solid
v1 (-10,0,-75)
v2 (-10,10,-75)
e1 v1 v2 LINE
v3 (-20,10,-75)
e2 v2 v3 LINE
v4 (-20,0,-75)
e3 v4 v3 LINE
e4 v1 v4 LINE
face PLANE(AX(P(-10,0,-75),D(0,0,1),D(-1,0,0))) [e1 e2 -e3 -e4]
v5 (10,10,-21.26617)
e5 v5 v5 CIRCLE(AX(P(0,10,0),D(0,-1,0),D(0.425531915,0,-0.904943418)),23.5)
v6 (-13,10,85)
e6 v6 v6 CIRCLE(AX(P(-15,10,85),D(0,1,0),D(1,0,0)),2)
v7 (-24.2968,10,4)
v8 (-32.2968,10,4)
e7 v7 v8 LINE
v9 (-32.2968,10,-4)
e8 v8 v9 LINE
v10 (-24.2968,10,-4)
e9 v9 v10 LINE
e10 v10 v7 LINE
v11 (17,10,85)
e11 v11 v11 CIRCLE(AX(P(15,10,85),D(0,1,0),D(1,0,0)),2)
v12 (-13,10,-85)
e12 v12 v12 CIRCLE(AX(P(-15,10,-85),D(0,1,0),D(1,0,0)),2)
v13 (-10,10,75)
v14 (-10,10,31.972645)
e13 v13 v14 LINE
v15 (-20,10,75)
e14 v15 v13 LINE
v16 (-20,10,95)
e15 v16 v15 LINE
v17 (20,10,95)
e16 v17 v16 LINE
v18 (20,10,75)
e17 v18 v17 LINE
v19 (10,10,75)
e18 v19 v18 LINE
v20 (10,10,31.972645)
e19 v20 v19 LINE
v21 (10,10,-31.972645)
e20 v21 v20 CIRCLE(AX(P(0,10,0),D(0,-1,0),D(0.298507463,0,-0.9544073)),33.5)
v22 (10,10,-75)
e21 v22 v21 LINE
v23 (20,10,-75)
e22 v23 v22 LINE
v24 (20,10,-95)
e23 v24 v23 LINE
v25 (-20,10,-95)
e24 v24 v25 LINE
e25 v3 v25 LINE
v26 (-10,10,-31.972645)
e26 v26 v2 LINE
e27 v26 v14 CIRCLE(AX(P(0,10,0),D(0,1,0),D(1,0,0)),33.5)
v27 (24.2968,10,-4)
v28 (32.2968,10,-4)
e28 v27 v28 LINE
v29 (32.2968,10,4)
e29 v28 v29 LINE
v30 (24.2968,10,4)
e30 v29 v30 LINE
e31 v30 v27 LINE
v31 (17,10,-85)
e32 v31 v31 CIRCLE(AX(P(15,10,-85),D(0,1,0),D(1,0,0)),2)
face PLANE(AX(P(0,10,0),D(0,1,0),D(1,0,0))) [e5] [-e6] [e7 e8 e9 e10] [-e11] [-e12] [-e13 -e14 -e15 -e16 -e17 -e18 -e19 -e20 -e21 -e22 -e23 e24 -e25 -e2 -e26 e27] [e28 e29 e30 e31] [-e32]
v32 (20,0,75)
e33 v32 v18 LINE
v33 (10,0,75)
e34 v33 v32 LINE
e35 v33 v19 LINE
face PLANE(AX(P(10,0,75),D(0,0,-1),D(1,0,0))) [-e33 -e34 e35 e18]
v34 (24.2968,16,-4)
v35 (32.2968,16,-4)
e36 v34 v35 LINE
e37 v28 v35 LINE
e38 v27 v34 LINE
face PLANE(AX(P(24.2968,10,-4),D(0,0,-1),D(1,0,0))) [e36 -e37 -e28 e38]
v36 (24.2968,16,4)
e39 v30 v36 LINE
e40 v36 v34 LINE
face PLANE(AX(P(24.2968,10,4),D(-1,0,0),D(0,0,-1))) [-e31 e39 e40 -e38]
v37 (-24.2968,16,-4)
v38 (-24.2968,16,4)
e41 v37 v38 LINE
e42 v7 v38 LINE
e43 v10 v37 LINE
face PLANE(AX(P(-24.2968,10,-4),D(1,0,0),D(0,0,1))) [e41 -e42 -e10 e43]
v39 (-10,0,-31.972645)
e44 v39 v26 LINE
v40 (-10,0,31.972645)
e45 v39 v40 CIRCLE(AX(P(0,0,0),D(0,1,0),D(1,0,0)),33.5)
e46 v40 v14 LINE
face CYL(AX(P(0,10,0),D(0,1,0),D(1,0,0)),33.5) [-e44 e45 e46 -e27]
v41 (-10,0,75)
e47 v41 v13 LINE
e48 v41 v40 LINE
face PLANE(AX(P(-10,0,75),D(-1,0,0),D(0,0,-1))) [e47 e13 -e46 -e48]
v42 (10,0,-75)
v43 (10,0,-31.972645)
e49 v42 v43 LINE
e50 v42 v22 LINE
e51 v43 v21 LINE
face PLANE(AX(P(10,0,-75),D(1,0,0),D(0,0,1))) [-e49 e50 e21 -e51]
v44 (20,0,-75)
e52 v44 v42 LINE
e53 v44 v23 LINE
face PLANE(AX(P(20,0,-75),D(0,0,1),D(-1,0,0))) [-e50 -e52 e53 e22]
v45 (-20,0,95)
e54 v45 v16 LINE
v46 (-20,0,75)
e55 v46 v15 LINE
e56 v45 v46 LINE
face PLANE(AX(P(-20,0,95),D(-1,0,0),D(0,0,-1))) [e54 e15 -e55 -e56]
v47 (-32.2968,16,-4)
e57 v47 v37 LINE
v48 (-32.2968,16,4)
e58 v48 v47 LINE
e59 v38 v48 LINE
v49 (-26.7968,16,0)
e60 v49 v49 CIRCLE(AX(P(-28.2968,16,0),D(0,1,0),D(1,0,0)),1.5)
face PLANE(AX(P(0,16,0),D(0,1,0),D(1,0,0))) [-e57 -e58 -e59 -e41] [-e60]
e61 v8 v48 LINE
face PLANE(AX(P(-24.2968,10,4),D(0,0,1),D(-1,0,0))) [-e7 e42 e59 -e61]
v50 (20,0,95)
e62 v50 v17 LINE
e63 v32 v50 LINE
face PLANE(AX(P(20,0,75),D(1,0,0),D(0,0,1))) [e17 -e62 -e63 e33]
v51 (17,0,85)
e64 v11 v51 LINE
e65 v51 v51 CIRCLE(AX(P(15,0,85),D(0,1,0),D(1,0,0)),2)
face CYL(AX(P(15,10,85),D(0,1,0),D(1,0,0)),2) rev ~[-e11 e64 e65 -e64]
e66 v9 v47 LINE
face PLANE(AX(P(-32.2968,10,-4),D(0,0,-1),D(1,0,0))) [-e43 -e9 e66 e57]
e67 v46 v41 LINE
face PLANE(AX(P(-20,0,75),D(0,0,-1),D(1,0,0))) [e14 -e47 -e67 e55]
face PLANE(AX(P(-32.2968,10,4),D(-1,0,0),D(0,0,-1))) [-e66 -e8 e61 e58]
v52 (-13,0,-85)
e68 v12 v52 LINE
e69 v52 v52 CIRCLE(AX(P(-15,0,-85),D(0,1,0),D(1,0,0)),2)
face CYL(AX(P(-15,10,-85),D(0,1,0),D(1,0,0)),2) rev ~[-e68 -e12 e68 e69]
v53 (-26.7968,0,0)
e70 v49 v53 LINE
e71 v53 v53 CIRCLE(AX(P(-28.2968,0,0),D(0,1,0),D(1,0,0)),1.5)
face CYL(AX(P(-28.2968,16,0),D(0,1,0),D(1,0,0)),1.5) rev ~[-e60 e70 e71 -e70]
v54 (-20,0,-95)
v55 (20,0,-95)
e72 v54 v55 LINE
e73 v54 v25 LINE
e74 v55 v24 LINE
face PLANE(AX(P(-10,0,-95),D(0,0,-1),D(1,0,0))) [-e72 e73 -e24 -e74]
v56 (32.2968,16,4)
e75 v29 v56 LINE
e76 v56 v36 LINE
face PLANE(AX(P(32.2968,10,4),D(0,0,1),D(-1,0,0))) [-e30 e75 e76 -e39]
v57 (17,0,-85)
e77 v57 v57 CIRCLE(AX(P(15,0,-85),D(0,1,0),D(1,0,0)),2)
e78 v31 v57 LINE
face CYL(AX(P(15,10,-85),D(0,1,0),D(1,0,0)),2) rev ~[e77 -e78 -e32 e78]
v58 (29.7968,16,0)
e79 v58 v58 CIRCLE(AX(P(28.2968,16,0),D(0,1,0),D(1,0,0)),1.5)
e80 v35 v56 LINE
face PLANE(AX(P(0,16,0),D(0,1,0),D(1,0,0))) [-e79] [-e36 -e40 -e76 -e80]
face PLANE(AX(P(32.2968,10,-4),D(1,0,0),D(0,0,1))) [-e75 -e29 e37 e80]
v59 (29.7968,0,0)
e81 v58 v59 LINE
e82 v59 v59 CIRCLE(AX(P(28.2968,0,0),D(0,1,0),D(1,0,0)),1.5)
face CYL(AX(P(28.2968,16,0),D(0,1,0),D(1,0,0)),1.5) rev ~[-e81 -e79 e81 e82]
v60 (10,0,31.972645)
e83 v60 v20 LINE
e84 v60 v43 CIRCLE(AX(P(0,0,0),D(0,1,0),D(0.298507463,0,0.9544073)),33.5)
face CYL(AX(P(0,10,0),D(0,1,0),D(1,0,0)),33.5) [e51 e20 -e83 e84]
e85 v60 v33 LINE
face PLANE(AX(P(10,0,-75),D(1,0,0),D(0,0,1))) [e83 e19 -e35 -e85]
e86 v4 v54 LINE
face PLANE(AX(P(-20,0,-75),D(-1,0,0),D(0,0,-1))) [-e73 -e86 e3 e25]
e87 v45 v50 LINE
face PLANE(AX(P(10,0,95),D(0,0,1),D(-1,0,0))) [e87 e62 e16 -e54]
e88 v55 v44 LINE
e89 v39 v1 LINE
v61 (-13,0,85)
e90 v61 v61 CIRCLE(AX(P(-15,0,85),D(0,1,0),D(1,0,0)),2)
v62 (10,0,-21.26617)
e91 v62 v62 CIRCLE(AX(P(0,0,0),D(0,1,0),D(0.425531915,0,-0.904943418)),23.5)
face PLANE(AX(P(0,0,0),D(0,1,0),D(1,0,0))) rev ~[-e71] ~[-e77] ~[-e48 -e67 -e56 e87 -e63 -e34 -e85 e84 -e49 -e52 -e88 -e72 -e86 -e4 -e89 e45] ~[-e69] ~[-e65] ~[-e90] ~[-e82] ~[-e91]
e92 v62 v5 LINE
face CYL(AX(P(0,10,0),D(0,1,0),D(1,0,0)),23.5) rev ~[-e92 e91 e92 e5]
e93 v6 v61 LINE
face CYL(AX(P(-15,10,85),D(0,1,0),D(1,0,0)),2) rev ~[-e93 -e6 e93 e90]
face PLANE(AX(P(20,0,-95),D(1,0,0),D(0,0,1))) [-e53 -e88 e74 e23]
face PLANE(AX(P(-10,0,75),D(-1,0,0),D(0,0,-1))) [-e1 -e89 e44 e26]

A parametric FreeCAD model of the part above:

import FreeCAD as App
import Part
import Sketcher

V = App.Vector
Q = App.Units.Quantity


def add_polygon(sketch, points):
    """Adds a closed chain of lines whose ends are joined by coincident constraints."""
    first, n = sketch.GeometryCount, len(points)
    for a, b in zip(points, points[1:] + points[:1]):
        sketch.addGeometry(Part.LineSegment(App.Vector(*a, 0), App.Vector(*b, 0)), False)
    for i in range(n):
        sketch.addConstraint(Sketcher.Constraint("Coincident", first + i, 2, first + (i + 1) % n, 1))

doc = App.newDocument("Part")
body = doc.addObject("PartDesign::Body", "Body")

sketch1 = body.newObject("Sketcher::SketchObject", "Sketch")
sketch1.AttachmentSupport = (doc.getObject("XZ_Plane"), [""])
sketch1.MapMode = "FlatFace"
add_polygon(sketch1, [(20, 95), (20, 75), (10, 75), (10, -75), (20, -75), (20, -95), (-20, -95), (-20, -75), (-10, -75), (-10, 75), (-20, 75), (-20, 95)])
sketch1.addConstraint([
    Sketcher.Constraint("Vertical", 0),
    Sketcher.Constraint("Horizontal", 1),
    Sketcher.Constraint("Vertical", 2),
    Sketcher.Constraint("Horizontal", 3),
    Sketcher.Constraint("Vertical", 4),
    Sketcher.Constraint("Horizontal", 5),
    Sketcher.Constraint("Vertical", 6),
    Sketcher.Constraint("Horizontal", 7),
    Sketcher.Constraint("Vertical", 8),
    Sketcher.Constraint("Horizontal", 9),
    Sketcher.Constraint("Vertical", 10),
    Sketcher.Constraint("Horizontal", 11),
    Sketcher.Constraint("Symmetric", 0, 2, 6, 2, -1, 1),
    Sketcher.Constraint("Symmetric", 2, 2, 8, 2, -1, 1),
    Sketcher.Constraint("Symmetric", 4, 2, 10, 2, -1, 1),
    Sketcher.Constraint("Symmetric", 3, 2, 6, 2, -2),
    Sketcher.Constraint("DistanceX", 5, 2, 5, 1, Q("40 mm")),
    Sketcher.Constraint("DistanceY", 0, 2, 0, 1, Q("20 mm")),
    Sketcher.Constraint("DistanceX", 7, 2, 2, 2, Q("20 mm")),
    Sketcher.Constraint("DistanceY", 2, 2, 2, 1, Q("150 mm")),
])
pad1 = body.newObject("PartDesign::Pad", "Pad")
pad1.Profile = sketch1
pad1.Length = 10
pad1.Reversed = True

sketch2 = body.newObject("Sketcher::SketchObject", "Sketch001")
sketch2.AttachmentSupport = (doc.getObject("XZ_Plane"), [""])
sketch2.MapMode = "FlatFace"
sketch2.AttachmentOffset = App.Placement(V(0, 0, -10), App.Rotation())
sketch2.addGeometry([
    Part.Circle(V(0, 0, 0), V(0, 0, 1), 33.5),
    Part.Circle(V(0, 0, 0), V(0, 0, 1), 23.5),
], False)
sketch2.addConstraint([
    Sketcher.Constraint("Coincident", 0, 3, -1, 1),
    Sketcher.Constraint("Coincident", 1, 3, -1, 1),
    Sketcher.Constraint("Diameter", 0, Q("67 mm")),
    Sketcher.Constraint("Diameter", 1, Q("47 mm")),
])
pad2 = body.newObject("PartDesign::Pad", "Pad001")
pad2.Profile = sketch2
pad2.Length = 10

sketch3 = body.newObject("Sketcher::SketchObject", "Sketch002")
sketch3.AttachmentSupport = (doc.getObject("XZ_Plane"), [""])
sketch3.MapMode = "FlatFace"
sketch3.AttachmentOffset = App.Placement(V(0, 0, -10), App.Rotation())
sketch3.addGeometry(Part.Circle(V(0, 0, 0), V(0, 0, 1), 23.5), False)
sketch3.addConstraint([
    Sketcher.Constraint("Coincident", 0, 3, -1, 1),
    Sketcher.Constraint("Diameter", 0, Q("47 mm")),
])
pocket1 = body.newObject("PartDesign::Pocket", "Pocket")
pocket1.Profile = sketch3
pocket1.Length = 10
pocket1.Reversed = True

sketch4 = body.newObject("Sketcher::SketchObject", "Sketch003")
sketch4.AttachmentSupport = (doc.getObject("XZ_Plane"), [""])
sketch4.MapMode = "FlatFace"
sketch4.AttachmentOffset = App.Placement(V(0, 0, -10), App.Rotation())
sketch4.addGeometry([
    Part.Circle(V(-15, 85, 0), V(0, 0, 1), 2),
    Part.Circle(V(15, 85, 0), V(0, 0, 1), 2),
    Part.Circle(V(-15, -85, 0), V(0, 0, 1), 2),
    Part.Circle(V(15, -85, 0), V(0, 0, 1), 2),
], False)
sketch4.addConstraint([
    Sketcher.Constraint("Equal", 0, 1),
    Sketcher.Constraint("Equal", 1, 2),
    Sketcher.Constraint("Equal", 2, 3),
    Sketcher.Constraint("Symmetric", 1, 3, 2, 3, -1, 1),
    Sketcher.Constraint("Symmetric", 0, 3, 3, 3, -1, 1),
    Sketcher.Constraint("Symmetric", 0, 3, 1, 3, -2),
    Sketcher.Constraint("Diameter", 0, Q("4 mm")),
    Sketcher.Constraint("DistanceX", 0, 3, -1, 1, Q("15 mm")),
    Sketcher.Constraint("DistanceY", -1, 1, 0, 3, Q("85 mm")),
])
pocket2 = body.newObject("PartDesign::Pocket", "Pocket001")
pocket2.Profile = sketch4
pocket2.Length = 10
pocket2.Reversed = True

sketch5 = body.newObject("Sketcher::SketchObject", "Sketch004")
sketch5.AttachmentSupport = (doc.getObject("XZ_Plane"), [""])
sketch5.MapMode = "FlatFace"
sketch5.AttachmentOffset = App.Placement(V(0, 0, -10), App.Rotation())
add_polygon(sketch5, [(32.2968, -4), (24.2968, -4), (24.2968, 4), (32.2968, 4)])
add_polygon(sketch5, [(-32.2968, -4), (-32.2968, 4), (-24.2968, 4), (-24.2968, -4)])
sketch5.addConstraint([
    Sketcher.Constraint("Horizontal", 0),
    Sketcher.Constraint("Vertical", 1),
    Sketcher.Constraint("Horizontal", 2),
    Sketcher.Constraint("Vertical", 3),
    Sketcher.Constraint("Vertical", 4),
    Sketcher.Constraint("Horizontal", 5),
    Sketcher.Constraint("Vertical", 6),
    Sketcher.Constraint("Horizontal", 7),
    Sketcher.Constraint("Symmetric", 3, 2, 4, 2, -1, 1),
    Sketcher.Constraint("Symmetric", 1, 2, 6, 2, -1, 1),
    Sketcher.Constraint("Horizontal", 2, 2, 4, 2),
    Sketcher.Constraint("Equal", 7, 1),
    Sketcher.Constraint("DistanceX", 0, 2, 0, 1, Q("8 mm")),
    Sketcher.Constraint("DistanceX", -1, 1, 0, 2, Q("24.2968 mm")),
])
pad3 = body.newObject("PartDesign::Pad", "Pad002")
pad3.Profile = sketch5
pad3.Length = 6
pad3.Reversed = True

sketch6 = body.newObject("Sketcher::SketchObject", "Sketch005")
sketch6.AttachmentSupport = (doc.getObject("XZ_Plane"), [""])
sketch6.MapMode = "FlatFace"
sketch6.AttachmentOffset = App.Placement(V(0, 0, -16), App.Rotation())
sketch6.addGeometry([
    Part.Circle(V(28.2968, 0, 0), V(0, 0, 1), 1.5),
    Part.Circle(V(-28.2968, 0, 0), V(0, 0, 1), 1.5),
], False)
sketch6.addConstraint([
    Sketcher.Constraint("Equal", 0, 1),
    Sketcher.Constraint("Symmetric", 0, 3, 1, 3, -1, 1),
    Sketcher.Constraint("PointOnObject", 0, 3, -1),
    Sketcher.Constraint("Diameter", 0, Q("3 mm")),
    Sketcher.Constraint("DistanceX", -1, 1, 0, 3, Q("28.2968 mm")),
])
pocket3 = body.newObject("PartDesign::Pocket", "Pocket002")
pocket3.Profile = sketch6
pocket3.Type = "ThroughAll"
pocket3.Reversed = True

doc.recompute()
